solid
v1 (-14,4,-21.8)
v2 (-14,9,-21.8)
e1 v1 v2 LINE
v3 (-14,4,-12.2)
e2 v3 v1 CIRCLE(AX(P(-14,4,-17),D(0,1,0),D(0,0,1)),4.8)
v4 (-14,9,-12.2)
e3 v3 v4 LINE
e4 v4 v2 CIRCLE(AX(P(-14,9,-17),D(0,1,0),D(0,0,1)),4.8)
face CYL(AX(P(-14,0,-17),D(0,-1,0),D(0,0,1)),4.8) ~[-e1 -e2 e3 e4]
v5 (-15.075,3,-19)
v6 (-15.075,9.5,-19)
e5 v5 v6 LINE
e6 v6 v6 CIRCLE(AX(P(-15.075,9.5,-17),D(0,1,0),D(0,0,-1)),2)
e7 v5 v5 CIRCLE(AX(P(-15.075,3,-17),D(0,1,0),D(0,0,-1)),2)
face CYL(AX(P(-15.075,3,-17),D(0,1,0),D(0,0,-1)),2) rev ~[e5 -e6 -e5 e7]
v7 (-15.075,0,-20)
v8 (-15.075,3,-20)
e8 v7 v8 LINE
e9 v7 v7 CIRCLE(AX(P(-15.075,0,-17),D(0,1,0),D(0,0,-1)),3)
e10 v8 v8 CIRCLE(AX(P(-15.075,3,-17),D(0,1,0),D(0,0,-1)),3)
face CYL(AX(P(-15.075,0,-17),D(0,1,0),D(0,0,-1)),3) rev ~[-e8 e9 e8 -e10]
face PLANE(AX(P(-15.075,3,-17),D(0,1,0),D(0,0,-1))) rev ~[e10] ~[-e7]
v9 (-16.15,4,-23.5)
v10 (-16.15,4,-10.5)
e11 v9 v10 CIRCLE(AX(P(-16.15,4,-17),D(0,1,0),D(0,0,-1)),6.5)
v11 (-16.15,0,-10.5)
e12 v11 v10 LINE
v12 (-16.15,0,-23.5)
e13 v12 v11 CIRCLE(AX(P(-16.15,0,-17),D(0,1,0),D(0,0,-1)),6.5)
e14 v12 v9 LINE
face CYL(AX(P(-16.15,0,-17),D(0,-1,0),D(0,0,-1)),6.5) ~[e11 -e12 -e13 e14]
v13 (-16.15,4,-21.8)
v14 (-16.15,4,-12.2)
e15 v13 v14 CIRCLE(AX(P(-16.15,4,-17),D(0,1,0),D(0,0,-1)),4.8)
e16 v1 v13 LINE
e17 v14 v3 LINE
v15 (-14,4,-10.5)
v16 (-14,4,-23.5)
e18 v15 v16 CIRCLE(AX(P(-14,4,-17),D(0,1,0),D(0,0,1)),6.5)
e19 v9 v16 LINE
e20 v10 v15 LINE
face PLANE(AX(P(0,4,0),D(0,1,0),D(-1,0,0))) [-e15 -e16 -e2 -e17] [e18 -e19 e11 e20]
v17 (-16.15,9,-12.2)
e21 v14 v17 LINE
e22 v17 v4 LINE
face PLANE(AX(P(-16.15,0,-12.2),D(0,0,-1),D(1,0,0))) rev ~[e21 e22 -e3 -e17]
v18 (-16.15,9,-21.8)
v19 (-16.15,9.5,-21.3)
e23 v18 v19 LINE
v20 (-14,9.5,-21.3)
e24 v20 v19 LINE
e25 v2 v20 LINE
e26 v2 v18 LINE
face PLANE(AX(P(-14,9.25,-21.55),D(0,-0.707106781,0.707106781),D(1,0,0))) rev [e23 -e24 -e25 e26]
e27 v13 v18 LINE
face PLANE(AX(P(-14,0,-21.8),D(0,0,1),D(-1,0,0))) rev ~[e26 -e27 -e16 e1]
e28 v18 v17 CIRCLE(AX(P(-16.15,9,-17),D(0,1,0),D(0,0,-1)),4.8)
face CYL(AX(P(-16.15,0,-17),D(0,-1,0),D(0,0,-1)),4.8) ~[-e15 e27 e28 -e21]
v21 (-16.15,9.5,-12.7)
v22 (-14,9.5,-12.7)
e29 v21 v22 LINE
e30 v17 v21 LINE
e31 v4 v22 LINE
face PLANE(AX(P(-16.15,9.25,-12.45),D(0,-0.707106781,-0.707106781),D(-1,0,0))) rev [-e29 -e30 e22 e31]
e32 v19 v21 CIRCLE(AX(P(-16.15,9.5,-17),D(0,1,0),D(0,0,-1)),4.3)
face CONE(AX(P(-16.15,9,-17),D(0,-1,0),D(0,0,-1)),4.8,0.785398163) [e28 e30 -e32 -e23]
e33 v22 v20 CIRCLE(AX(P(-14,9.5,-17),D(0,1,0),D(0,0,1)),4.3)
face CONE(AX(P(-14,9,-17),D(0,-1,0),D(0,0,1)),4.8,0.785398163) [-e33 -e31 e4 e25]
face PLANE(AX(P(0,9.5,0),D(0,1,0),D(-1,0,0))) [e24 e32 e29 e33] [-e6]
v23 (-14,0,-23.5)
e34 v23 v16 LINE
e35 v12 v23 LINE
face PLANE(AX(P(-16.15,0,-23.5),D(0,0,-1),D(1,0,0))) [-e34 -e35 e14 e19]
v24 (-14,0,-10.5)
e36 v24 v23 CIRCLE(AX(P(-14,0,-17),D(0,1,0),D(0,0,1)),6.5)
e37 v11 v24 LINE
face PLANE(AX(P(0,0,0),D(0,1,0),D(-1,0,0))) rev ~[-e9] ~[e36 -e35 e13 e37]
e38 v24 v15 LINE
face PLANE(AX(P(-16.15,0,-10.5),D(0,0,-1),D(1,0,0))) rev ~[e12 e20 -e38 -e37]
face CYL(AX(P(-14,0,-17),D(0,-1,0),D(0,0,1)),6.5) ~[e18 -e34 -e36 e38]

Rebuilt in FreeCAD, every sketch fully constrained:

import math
import FreeCAD as App
import Part
import Sketcher
from FreeCAD import Vector
Q = App.Units.Quantity


def edges_at(feature, points):
    """Names of the edges that pass closest to the given points."""
    edges = feature.Shape.Edges
    near = lambda p: min(range(len(edges)), key=lambda i: edges[i].distToShape(Part.Vertex(*p))[0])
    return sorted({f"Edge{near(p) + 1}" for p in points})

doc = App.newDocument("Part")
body = doc.addObject("PartDesign::Body", "Body")

# Sketch on XZ plane
sketch1 = body.newObject("Sketcher::SketchObject", "Sketch")
sketch1.AttachmentSupport = (doc.getObject("XZ_Plane"), [""])
sketch1.MapMode = "FlatFace"
sketch1.addGeometry([
    Part.LineSegment(Vector(-16.1, -12.2, 0), Vector(-14, -12.2, 0)),
    Part.ArcOfCircle(Part.Circle(Vector(-14, -17, 0), Vector(0, 0, 1), 4.8), math.radians(-90), math.radians(90)),
    Part.LineSegment(Vector(-14, -21.8, 0), Vector(-16.1, -21.8, 0)),
    Part.ArcOfCircle(Part.Circle(Vector(-16.1, -17, 0), Vector(0, 0, 1), 4.8), math.radians(90), math.radians(270)),
], False)
sketch1.addConstraint([
    Sketcher.Constraint("Tangent", 0, 2, 1, 2),
    Sketcher.Constraint("Tangent", 1, 1, 2, 1),
    Sketcher.Constraint("Tangent", 2, 2, 3, 2),
    Sketcher.Constraint("Tangent", 3, 1, 0, 1),
    Sketcher.Constraint("Horizontal", 0),
    Sketcher.Constraint("Horizontal", 2),
    Sketcher.Constraint("Radius", 1, Q("4.8 mm")),
    Sketcher.Constraint("DistanceY", 1, 3, -1, 1, Q("17 mm")),
    Sketcher.Constraint("DistanceX", 1, 3, -1, 1, Q("14 mm")),
    Sketcher.Constraint("DistanceX", 0, 1, 0, 2, Q("2.15 mm")),
])
pad1 = body.newObject("PartDesign::Pad", "Pad")
pad1.Profile = sketch1
pad1.Length = 9.5
pad1.Reversed = True

# Sketch on XZ plane
sketch2 = body.newObject("Sketcher::SketchObject", "Sketch001")
sketch2.AttachmentSupport = (doc.getObject("XZ_Plane"), [""])
sketch2.MapMode = "FlatFace"
sketch2.addGeometry([
    Part.LineSegment(Vector(-14, -23.5, 0), Vector(-16.1, -23.5, 0)),  # 0
    Part.ArcOfCircle(Part.Circle(Vector(-16.1, -17, 0), Vector(0, 0, 1), 6.5), math.radians(90), math.radians(270)),  # 1
    Part.LineSegment(Vector(-16.1, -10.5, 0), Vector(-14, -10.5, 0)),  # 2
    Part.ArcOfCircle(Part.Circle(Vector(-14, -17, 0), Vector(0, 0, 1), 6.5), math.radians(-90), math.radians(90)),  # 3
    Part.ArcOfCircle(Part.Circle(Vector(-14, -17, 0), Vector(0, 0, 1), 4.8), math.radians(-90), math.radians(90)),  # 4
    Part.LineSegment(Vector(-14, -12.2, 0), Vector(-16.1, -12.2, 0)),  # 5
    Part.ArcOfCircle(Part.Circle(Vector(-16.1, -17, 0), Vector(0, 0, 1), 4.8), math.radians(90), math.radians(270)),  # 6
    Part.LineSegment(Vector(-16.1, -21.8, 0), Vector(-14, -21.8, 0)),  # 7
], False)
sketch2.addConstraint([
    Sketcher.Constraint("Tangent", 0, 2, 1, 2),
    Sketcher.Constraint("Tangent", 1, 1, 2, 1),
    Sketcher.Constraint("Tangent", 2, 2, 3, 2),
    Sketcher.Constraint("Tangent", 3, 1, 0, 1),
    Sketcher.Constraint("Tangent", 4, 2, 5, 1),
    Sketcher.Constraint("Tangent", 5, 2, 6, 1),
    Sketcher.Constraint("Tangent", 6, 2, 7, 1),
    Sketcher.Constraint("Tangent", 7, 2, 4, 1),
    Sketcher.Constraint("Horizontal", 0),
    Sketcher.Constraint("Horizontal", 2),
    Sketcher.Constraint("Horizontal", 5),
    Sketcher.Constraint("Horizontal", 7),
    Sketcher.Constraint("Coincident", 4, 3, 3, 3),
    Sketcher.Constraint("Vertical", 6, 3, 0, 2),
    Sketcher.Constraint("Radius", 1, Q("6.5 mm")),
    Sketcher.Constraint("Radius", 4, Q("4.8 mm")),
    Sketcher.Constraint("DistanceY", 1, 3, -1, 1, Q("17 mm")),
    Sketcher.Constraint("DistanceX", 3, 3, -1, 1, Q("14 mm")),
    Sketcher.Constraint("DistanceX", 0, 2, 0, 1, Q("2.15 mm")),
])
pad2 = body.newObject("PartDesign::Pad", "Pad001")
pad2.Profile = sketch2
pad2.Length = 4
pad2.Reversed = True

# Sketch on XZ plane
sketch3 = body.newObject("Sketcher::SketchObject", "Sketch002")
sketch3.AttachmentSupport = (doc.getObject("XZ_Plane"), [""])
sketch3.MapMode = "FlatFace"
sketch3.addGeometry([
    Part.Circle(Vector(-35, -8.5, 0), Vector(0, 0, 1), 2),  # 0
    Part.Circle(Vector(0, -17, 0), Vector(0, 0, 1), 2),  # 1
    Part.Circle(Vector(-35, -42.5, 0), Vector(0, 0, 1), 2),  # 2
    Part.Circle(Vector(-35, -25.5, 0), Vector(0, 0, 1), 2),  # 3
    Part.Circle(Vector(-92, -17, 0), Vector(0, 0, 1), 2),  # 4
    Part.Circle(Vector(-53.5, -17, 0), Vector(0, 0, 1), 2),  # 5
    Part.Circle(Vector(-15.1, -17, 0), Vector(0, 0, 1), 2),  # 6
], False)
sketch3.addConstraint([
    Sketcher.Constraint("Equal", 0, 1),
    Sketcher.Constraint("Equal", 1, 2),
    Sketcher.Constraint("Equal", 2, 3),
    Sketcher.Constraint("Equal", 3, 4),
    Sketcher.Constraint("Equal", 4, 5),
    Sketcher.Constraint("Equal", 5, 6),
    Sketcher.Constraint("PointOnObject", 1, 3, -2),
    Sketcher.Constraint("Horizontal", 1, 3, 4, 3),
    Sketcher.Constraint("Horizontal", 4, 3, 5, 3),
    Sketcher.Constraint("Horizontal", 5, 3, 6, 3),
    Sketcher.Constraint("Vertical", 0, 3, 2, 3),
    Sketcher.Constraint("Vertical", 2, 3, 3, 3),
    Sketcher.Constraint("Diameter", 0, Q("4 mm")),
    Sketcher.Constraint("DistanceX", 0, 3, -1, 1, Q("35 mm")),
    Sketcher.Constraint("DistanceY", 1, 3, -1, 1, Q("17 mm")),
    Sketcher.Constraint("DistanceX", 4, 3, -1, 1, Q("92 mm")),
    Sketcher.Constraint("DistanceY", 2, 3, 0, 3, Q("34 mm")),
    Sketcher.Constraint("DistanceY", 3, 3, 0, 3, Q("17 mm")),
    Sketcher.Constraint("DistanceY", 0, 3, -1, 1, Q("8.5 mm")),
    Sketcher.Constraint("DistanceX", 5, 3, -1, 1, Q("53.45 mm")),
    Sketcher.Constraint("DistanceX", 6, 3, -1, 1, Q("15.075 mm")),
])
doc.recompute()
hole = body.newObject("PartDesign::Hole", "Hole")
hole.Profile = sketch3
hole.ThreadType = "None"
hole.Diameter = 4
hole.DepthType = "ThroughAll"
hole.HoleCutType = "Counterbore"
hole.HoleCutDiameter = 6
hole.HoleCutDepth = 3
doc.recompute()

chamfer = body.newObject("PartDesign::Chamfer", "Chamfer")
chamfer.Base = (hole, edges_at(hole, [
    (-9.2, 9.5, -17),
    (-15.075, 9.5, -21.8),
    (-20.95, 9.5, -17),
    (-15.075, 9.5, -12.2),
]))
chamfer.Size = 0.5

doc.recompute()
